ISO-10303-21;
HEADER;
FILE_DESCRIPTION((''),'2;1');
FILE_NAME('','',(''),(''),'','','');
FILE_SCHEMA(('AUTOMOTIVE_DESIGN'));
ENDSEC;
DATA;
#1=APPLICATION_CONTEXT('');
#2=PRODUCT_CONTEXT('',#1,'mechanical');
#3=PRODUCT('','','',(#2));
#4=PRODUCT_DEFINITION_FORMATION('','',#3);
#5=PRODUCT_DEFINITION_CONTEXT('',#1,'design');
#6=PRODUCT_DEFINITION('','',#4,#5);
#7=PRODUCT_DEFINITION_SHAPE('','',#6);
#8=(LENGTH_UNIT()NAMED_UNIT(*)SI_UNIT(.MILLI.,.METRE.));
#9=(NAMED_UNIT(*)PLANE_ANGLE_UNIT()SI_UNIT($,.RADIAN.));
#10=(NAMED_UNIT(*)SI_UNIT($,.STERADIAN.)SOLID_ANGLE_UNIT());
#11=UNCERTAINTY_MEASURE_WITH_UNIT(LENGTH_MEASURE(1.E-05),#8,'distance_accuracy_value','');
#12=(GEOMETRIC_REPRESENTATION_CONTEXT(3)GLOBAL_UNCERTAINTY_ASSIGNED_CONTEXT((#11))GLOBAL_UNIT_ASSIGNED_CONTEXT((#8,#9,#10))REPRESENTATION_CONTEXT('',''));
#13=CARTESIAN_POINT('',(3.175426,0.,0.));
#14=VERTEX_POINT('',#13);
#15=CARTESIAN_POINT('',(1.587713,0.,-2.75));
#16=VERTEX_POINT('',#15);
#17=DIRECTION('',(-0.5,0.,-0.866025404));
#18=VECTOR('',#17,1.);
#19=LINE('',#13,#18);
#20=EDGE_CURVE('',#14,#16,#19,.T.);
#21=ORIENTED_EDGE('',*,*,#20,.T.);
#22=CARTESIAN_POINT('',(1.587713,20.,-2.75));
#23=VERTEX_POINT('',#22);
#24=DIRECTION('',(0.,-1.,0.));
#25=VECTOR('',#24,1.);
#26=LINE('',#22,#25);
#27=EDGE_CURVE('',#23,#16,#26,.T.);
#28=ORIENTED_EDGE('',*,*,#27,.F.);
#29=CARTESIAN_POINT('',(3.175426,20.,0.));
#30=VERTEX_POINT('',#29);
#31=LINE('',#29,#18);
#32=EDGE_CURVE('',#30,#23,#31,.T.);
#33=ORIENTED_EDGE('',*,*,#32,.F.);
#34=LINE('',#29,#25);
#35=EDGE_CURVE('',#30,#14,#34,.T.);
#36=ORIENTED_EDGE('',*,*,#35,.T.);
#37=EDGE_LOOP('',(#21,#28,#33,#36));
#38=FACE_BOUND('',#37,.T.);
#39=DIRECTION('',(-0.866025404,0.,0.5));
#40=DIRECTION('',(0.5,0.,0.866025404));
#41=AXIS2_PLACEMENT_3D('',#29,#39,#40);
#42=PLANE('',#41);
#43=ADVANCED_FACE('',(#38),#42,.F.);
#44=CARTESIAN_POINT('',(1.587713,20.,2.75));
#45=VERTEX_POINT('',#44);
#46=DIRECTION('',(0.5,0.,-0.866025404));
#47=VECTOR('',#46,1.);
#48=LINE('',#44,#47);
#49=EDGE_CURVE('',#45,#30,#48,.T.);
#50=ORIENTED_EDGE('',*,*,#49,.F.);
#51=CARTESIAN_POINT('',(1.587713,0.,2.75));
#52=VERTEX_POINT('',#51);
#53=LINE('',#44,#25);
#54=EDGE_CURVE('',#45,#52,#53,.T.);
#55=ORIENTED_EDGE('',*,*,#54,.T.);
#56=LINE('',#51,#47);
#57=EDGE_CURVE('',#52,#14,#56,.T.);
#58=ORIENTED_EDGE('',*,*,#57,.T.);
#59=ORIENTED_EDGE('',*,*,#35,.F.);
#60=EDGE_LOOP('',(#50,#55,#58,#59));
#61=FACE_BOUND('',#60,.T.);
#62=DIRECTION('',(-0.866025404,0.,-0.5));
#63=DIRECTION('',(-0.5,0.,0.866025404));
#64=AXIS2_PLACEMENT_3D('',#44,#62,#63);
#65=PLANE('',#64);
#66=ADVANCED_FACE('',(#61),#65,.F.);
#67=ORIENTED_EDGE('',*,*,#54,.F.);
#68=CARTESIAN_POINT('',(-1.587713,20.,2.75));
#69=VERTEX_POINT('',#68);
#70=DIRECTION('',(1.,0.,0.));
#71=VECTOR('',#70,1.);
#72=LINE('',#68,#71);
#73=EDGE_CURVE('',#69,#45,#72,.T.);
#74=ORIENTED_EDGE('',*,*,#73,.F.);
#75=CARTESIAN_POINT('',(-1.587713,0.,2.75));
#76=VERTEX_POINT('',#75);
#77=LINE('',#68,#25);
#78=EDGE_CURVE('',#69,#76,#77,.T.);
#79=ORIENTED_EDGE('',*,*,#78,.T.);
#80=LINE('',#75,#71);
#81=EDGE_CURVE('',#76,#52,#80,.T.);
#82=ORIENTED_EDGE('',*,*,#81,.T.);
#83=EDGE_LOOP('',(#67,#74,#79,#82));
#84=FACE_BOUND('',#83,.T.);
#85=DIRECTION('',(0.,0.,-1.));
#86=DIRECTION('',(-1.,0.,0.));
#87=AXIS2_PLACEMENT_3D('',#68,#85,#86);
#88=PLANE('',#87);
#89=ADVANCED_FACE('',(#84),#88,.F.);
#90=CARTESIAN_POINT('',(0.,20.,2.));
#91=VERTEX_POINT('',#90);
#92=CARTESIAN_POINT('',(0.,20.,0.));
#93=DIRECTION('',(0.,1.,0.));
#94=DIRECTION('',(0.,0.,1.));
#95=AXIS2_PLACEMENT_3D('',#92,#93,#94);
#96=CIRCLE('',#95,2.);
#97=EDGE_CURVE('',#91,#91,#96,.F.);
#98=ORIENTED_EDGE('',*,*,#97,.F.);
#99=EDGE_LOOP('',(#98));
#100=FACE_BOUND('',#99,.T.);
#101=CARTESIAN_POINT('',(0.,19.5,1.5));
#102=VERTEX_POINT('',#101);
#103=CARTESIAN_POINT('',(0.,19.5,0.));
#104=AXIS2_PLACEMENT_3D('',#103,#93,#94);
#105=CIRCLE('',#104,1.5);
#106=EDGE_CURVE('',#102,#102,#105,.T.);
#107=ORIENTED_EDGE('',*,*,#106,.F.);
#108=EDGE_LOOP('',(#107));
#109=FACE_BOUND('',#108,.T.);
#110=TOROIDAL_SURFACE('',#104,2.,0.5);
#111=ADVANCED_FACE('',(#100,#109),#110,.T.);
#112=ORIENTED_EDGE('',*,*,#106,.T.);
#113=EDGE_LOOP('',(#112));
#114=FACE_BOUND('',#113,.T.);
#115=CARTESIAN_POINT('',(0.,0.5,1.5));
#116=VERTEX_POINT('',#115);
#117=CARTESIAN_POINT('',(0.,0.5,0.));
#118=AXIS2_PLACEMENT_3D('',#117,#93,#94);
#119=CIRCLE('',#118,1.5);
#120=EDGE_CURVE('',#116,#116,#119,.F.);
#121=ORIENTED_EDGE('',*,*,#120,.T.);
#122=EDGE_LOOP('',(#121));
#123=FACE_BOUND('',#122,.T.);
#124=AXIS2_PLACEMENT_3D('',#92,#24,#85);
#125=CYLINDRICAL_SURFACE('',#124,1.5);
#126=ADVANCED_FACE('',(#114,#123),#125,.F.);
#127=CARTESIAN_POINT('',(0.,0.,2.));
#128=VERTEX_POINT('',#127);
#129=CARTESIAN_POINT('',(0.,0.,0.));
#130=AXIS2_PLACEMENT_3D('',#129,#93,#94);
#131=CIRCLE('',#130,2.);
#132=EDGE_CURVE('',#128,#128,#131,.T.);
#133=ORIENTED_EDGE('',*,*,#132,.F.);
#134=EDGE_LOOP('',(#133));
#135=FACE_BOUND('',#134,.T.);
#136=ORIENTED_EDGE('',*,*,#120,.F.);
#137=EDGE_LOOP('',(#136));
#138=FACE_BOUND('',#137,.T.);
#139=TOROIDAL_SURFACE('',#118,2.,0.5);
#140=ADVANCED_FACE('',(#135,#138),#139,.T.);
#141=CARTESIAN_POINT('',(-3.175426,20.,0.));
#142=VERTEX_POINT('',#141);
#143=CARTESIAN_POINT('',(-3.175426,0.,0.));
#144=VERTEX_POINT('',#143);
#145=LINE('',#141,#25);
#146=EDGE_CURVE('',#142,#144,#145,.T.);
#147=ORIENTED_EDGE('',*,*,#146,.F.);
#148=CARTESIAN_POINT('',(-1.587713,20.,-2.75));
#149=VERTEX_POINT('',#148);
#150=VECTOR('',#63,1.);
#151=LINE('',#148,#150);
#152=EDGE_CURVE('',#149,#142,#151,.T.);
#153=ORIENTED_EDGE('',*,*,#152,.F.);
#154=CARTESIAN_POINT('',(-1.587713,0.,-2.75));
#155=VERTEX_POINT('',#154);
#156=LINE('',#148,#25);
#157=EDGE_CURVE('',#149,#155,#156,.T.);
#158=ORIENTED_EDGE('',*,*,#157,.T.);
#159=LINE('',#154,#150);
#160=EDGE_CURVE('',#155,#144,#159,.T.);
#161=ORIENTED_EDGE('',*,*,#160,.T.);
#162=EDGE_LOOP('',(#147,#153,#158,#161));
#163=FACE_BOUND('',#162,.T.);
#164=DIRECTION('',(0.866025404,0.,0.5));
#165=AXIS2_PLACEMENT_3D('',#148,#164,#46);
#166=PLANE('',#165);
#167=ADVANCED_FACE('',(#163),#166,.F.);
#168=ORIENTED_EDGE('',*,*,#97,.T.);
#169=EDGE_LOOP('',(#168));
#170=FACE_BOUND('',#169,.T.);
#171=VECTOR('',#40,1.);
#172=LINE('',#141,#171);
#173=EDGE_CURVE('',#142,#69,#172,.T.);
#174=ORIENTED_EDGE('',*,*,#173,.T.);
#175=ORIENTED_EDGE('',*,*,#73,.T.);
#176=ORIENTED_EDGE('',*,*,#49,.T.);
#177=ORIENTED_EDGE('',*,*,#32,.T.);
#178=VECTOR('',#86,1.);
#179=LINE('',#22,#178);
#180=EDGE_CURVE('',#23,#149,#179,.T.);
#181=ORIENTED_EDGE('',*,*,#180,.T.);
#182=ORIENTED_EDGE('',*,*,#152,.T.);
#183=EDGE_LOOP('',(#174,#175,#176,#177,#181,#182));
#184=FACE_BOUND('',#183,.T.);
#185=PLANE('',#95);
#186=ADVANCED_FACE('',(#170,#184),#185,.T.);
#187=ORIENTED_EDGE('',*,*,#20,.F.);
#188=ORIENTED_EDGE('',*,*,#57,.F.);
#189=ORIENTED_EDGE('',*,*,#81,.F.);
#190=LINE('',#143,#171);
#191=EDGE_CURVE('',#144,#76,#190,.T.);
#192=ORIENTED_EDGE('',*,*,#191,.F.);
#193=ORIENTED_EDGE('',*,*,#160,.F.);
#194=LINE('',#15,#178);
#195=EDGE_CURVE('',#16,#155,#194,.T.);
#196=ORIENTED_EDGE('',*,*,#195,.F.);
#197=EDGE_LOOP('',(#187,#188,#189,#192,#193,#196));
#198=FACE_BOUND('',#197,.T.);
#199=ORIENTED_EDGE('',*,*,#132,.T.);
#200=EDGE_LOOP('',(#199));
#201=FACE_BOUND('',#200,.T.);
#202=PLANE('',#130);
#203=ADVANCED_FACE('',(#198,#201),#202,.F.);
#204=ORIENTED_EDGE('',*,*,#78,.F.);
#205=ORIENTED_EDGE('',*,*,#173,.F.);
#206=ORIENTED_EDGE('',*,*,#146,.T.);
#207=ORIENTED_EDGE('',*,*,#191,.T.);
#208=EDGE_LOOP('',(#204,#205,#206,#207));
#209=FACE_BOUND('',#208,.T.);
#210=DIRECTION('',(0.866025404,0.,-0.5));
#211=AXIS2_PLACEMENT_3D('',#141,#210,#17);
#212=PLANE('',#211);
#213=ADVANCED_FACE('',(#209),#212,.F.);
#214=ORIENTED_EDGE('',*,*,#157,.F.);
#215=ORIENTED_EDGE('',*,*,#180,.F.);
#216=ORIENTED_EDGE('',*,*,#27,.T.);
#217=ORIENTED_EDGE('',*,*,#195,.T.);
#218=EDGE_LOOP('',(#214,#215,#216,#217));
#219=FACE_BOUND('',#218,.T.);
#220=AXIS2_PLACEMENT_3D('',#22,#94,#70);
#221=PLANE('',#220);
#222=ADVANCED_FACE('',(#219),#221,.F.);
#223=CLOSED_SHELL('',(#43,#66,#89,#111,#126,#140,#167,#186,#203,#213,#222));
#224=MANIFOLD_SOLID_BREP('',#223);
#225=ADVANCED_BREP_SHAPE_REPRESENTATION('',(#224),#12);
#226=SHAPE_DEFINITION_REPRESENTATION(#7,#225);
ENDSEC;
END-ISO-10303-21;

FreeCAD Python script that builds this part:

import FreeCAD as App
import Part
import Sketcher
Q = App.Units.Quantity


def edges_at(feature, points):
    """Names of the edges that pass closest to the given points."""
    edges = feature.Shape.Edges
    near = lambda p: min(range(len(edges)), key=lambda i: edges[i].distToShape(Part.Vertex(*p))[0])
    return sorted({f"Edge{near(p) + 1}" for p in points})


def add_polygon(sketch, points):
    """Adds a closed chain of lines whose ends are joined by coincident constraints."""
    first, n = sketch.GeometryCount, len(points)
    for a, b in zip(points, points[1:] + points[:1]):
        sketch.addGeometry(Part.LineSegment(App.Vector(*a, 0), App.Vector(*b, 0)), False)
    for i in range(n):
        sketch.addConstraint(Sketcher.Constraint("Coincident", first + i, 2, first + (i + 1) % n, 1))

doc = App.newDocument("Part")
body = doc.addObject("PartDesign::Body", "Body")

# Sketch on XZ plane
sketch1 = body.newObject("Sketcher::SketchObject", "Sketch")
sketch1.AttachmentSupport = (doc.getObject("XZ_Plane"), [""])
sketch1.MapMode = "FlatFace"
add_polygon(sketch1, [(-3.2, 0), (-1.6, 2.8), (1.6, 2.8), (3.2, 0), (1.6, -2.8), (-1.6, -2.8)])  # lines 0-5
sketch1.addGeometry(Part.Circle(App.Vector(0, 0, 0), App.Vector(0, 0, 1), 1.5), False)  # 6
sketch1.addConstraint([
    Sketcher.Constraint("Horizontal", 1),
    Sketcher.Constraint("Horizontal", 4),
    Sketcher.Constraint("Coincident", 6, 3, -1, 1),
    Sketcher.Constraint("Symmetric", 0, 2, 3, 2, -1, 1),
    Sketcher.Constraint("Symmetric", 2, 2, 5, 2, -1, 1),
    Sketcher.Constraint("PointOnObject", 2, 2, -1),
    Sketcher.Constraint("Parallel", 2, 5),
    Sketcher.Constraint("Vertical", 1, 2, 3, 2),
    Sketcher.Constraint("Diameter", 6, 3.0),
    Sketcher.Constraint("Angle", 0, Q("60 deg")),
    Sketcher.Constraint("DistanceY", 3, 2, 1, 2, 5.5),
    Sketcher.Constraint("DistanceX", 1, 1, 1, 2, 3.175426),
])
pad1 = body.newObject("PartDesign::Pad", "Pad")
pad1.Profile = sketch1
pad1.Length = 20
pad1.Reversed = True
doc.recompute()

fillet = body.newObject("PartDesign::Fillet", "Fillet")
fillet.Base = (pad1, edges_at(pad1, [(0, 0, -1.5), (0, 20, -1.5)]))
fillet.Radius = 0.5

doc.recompute()
